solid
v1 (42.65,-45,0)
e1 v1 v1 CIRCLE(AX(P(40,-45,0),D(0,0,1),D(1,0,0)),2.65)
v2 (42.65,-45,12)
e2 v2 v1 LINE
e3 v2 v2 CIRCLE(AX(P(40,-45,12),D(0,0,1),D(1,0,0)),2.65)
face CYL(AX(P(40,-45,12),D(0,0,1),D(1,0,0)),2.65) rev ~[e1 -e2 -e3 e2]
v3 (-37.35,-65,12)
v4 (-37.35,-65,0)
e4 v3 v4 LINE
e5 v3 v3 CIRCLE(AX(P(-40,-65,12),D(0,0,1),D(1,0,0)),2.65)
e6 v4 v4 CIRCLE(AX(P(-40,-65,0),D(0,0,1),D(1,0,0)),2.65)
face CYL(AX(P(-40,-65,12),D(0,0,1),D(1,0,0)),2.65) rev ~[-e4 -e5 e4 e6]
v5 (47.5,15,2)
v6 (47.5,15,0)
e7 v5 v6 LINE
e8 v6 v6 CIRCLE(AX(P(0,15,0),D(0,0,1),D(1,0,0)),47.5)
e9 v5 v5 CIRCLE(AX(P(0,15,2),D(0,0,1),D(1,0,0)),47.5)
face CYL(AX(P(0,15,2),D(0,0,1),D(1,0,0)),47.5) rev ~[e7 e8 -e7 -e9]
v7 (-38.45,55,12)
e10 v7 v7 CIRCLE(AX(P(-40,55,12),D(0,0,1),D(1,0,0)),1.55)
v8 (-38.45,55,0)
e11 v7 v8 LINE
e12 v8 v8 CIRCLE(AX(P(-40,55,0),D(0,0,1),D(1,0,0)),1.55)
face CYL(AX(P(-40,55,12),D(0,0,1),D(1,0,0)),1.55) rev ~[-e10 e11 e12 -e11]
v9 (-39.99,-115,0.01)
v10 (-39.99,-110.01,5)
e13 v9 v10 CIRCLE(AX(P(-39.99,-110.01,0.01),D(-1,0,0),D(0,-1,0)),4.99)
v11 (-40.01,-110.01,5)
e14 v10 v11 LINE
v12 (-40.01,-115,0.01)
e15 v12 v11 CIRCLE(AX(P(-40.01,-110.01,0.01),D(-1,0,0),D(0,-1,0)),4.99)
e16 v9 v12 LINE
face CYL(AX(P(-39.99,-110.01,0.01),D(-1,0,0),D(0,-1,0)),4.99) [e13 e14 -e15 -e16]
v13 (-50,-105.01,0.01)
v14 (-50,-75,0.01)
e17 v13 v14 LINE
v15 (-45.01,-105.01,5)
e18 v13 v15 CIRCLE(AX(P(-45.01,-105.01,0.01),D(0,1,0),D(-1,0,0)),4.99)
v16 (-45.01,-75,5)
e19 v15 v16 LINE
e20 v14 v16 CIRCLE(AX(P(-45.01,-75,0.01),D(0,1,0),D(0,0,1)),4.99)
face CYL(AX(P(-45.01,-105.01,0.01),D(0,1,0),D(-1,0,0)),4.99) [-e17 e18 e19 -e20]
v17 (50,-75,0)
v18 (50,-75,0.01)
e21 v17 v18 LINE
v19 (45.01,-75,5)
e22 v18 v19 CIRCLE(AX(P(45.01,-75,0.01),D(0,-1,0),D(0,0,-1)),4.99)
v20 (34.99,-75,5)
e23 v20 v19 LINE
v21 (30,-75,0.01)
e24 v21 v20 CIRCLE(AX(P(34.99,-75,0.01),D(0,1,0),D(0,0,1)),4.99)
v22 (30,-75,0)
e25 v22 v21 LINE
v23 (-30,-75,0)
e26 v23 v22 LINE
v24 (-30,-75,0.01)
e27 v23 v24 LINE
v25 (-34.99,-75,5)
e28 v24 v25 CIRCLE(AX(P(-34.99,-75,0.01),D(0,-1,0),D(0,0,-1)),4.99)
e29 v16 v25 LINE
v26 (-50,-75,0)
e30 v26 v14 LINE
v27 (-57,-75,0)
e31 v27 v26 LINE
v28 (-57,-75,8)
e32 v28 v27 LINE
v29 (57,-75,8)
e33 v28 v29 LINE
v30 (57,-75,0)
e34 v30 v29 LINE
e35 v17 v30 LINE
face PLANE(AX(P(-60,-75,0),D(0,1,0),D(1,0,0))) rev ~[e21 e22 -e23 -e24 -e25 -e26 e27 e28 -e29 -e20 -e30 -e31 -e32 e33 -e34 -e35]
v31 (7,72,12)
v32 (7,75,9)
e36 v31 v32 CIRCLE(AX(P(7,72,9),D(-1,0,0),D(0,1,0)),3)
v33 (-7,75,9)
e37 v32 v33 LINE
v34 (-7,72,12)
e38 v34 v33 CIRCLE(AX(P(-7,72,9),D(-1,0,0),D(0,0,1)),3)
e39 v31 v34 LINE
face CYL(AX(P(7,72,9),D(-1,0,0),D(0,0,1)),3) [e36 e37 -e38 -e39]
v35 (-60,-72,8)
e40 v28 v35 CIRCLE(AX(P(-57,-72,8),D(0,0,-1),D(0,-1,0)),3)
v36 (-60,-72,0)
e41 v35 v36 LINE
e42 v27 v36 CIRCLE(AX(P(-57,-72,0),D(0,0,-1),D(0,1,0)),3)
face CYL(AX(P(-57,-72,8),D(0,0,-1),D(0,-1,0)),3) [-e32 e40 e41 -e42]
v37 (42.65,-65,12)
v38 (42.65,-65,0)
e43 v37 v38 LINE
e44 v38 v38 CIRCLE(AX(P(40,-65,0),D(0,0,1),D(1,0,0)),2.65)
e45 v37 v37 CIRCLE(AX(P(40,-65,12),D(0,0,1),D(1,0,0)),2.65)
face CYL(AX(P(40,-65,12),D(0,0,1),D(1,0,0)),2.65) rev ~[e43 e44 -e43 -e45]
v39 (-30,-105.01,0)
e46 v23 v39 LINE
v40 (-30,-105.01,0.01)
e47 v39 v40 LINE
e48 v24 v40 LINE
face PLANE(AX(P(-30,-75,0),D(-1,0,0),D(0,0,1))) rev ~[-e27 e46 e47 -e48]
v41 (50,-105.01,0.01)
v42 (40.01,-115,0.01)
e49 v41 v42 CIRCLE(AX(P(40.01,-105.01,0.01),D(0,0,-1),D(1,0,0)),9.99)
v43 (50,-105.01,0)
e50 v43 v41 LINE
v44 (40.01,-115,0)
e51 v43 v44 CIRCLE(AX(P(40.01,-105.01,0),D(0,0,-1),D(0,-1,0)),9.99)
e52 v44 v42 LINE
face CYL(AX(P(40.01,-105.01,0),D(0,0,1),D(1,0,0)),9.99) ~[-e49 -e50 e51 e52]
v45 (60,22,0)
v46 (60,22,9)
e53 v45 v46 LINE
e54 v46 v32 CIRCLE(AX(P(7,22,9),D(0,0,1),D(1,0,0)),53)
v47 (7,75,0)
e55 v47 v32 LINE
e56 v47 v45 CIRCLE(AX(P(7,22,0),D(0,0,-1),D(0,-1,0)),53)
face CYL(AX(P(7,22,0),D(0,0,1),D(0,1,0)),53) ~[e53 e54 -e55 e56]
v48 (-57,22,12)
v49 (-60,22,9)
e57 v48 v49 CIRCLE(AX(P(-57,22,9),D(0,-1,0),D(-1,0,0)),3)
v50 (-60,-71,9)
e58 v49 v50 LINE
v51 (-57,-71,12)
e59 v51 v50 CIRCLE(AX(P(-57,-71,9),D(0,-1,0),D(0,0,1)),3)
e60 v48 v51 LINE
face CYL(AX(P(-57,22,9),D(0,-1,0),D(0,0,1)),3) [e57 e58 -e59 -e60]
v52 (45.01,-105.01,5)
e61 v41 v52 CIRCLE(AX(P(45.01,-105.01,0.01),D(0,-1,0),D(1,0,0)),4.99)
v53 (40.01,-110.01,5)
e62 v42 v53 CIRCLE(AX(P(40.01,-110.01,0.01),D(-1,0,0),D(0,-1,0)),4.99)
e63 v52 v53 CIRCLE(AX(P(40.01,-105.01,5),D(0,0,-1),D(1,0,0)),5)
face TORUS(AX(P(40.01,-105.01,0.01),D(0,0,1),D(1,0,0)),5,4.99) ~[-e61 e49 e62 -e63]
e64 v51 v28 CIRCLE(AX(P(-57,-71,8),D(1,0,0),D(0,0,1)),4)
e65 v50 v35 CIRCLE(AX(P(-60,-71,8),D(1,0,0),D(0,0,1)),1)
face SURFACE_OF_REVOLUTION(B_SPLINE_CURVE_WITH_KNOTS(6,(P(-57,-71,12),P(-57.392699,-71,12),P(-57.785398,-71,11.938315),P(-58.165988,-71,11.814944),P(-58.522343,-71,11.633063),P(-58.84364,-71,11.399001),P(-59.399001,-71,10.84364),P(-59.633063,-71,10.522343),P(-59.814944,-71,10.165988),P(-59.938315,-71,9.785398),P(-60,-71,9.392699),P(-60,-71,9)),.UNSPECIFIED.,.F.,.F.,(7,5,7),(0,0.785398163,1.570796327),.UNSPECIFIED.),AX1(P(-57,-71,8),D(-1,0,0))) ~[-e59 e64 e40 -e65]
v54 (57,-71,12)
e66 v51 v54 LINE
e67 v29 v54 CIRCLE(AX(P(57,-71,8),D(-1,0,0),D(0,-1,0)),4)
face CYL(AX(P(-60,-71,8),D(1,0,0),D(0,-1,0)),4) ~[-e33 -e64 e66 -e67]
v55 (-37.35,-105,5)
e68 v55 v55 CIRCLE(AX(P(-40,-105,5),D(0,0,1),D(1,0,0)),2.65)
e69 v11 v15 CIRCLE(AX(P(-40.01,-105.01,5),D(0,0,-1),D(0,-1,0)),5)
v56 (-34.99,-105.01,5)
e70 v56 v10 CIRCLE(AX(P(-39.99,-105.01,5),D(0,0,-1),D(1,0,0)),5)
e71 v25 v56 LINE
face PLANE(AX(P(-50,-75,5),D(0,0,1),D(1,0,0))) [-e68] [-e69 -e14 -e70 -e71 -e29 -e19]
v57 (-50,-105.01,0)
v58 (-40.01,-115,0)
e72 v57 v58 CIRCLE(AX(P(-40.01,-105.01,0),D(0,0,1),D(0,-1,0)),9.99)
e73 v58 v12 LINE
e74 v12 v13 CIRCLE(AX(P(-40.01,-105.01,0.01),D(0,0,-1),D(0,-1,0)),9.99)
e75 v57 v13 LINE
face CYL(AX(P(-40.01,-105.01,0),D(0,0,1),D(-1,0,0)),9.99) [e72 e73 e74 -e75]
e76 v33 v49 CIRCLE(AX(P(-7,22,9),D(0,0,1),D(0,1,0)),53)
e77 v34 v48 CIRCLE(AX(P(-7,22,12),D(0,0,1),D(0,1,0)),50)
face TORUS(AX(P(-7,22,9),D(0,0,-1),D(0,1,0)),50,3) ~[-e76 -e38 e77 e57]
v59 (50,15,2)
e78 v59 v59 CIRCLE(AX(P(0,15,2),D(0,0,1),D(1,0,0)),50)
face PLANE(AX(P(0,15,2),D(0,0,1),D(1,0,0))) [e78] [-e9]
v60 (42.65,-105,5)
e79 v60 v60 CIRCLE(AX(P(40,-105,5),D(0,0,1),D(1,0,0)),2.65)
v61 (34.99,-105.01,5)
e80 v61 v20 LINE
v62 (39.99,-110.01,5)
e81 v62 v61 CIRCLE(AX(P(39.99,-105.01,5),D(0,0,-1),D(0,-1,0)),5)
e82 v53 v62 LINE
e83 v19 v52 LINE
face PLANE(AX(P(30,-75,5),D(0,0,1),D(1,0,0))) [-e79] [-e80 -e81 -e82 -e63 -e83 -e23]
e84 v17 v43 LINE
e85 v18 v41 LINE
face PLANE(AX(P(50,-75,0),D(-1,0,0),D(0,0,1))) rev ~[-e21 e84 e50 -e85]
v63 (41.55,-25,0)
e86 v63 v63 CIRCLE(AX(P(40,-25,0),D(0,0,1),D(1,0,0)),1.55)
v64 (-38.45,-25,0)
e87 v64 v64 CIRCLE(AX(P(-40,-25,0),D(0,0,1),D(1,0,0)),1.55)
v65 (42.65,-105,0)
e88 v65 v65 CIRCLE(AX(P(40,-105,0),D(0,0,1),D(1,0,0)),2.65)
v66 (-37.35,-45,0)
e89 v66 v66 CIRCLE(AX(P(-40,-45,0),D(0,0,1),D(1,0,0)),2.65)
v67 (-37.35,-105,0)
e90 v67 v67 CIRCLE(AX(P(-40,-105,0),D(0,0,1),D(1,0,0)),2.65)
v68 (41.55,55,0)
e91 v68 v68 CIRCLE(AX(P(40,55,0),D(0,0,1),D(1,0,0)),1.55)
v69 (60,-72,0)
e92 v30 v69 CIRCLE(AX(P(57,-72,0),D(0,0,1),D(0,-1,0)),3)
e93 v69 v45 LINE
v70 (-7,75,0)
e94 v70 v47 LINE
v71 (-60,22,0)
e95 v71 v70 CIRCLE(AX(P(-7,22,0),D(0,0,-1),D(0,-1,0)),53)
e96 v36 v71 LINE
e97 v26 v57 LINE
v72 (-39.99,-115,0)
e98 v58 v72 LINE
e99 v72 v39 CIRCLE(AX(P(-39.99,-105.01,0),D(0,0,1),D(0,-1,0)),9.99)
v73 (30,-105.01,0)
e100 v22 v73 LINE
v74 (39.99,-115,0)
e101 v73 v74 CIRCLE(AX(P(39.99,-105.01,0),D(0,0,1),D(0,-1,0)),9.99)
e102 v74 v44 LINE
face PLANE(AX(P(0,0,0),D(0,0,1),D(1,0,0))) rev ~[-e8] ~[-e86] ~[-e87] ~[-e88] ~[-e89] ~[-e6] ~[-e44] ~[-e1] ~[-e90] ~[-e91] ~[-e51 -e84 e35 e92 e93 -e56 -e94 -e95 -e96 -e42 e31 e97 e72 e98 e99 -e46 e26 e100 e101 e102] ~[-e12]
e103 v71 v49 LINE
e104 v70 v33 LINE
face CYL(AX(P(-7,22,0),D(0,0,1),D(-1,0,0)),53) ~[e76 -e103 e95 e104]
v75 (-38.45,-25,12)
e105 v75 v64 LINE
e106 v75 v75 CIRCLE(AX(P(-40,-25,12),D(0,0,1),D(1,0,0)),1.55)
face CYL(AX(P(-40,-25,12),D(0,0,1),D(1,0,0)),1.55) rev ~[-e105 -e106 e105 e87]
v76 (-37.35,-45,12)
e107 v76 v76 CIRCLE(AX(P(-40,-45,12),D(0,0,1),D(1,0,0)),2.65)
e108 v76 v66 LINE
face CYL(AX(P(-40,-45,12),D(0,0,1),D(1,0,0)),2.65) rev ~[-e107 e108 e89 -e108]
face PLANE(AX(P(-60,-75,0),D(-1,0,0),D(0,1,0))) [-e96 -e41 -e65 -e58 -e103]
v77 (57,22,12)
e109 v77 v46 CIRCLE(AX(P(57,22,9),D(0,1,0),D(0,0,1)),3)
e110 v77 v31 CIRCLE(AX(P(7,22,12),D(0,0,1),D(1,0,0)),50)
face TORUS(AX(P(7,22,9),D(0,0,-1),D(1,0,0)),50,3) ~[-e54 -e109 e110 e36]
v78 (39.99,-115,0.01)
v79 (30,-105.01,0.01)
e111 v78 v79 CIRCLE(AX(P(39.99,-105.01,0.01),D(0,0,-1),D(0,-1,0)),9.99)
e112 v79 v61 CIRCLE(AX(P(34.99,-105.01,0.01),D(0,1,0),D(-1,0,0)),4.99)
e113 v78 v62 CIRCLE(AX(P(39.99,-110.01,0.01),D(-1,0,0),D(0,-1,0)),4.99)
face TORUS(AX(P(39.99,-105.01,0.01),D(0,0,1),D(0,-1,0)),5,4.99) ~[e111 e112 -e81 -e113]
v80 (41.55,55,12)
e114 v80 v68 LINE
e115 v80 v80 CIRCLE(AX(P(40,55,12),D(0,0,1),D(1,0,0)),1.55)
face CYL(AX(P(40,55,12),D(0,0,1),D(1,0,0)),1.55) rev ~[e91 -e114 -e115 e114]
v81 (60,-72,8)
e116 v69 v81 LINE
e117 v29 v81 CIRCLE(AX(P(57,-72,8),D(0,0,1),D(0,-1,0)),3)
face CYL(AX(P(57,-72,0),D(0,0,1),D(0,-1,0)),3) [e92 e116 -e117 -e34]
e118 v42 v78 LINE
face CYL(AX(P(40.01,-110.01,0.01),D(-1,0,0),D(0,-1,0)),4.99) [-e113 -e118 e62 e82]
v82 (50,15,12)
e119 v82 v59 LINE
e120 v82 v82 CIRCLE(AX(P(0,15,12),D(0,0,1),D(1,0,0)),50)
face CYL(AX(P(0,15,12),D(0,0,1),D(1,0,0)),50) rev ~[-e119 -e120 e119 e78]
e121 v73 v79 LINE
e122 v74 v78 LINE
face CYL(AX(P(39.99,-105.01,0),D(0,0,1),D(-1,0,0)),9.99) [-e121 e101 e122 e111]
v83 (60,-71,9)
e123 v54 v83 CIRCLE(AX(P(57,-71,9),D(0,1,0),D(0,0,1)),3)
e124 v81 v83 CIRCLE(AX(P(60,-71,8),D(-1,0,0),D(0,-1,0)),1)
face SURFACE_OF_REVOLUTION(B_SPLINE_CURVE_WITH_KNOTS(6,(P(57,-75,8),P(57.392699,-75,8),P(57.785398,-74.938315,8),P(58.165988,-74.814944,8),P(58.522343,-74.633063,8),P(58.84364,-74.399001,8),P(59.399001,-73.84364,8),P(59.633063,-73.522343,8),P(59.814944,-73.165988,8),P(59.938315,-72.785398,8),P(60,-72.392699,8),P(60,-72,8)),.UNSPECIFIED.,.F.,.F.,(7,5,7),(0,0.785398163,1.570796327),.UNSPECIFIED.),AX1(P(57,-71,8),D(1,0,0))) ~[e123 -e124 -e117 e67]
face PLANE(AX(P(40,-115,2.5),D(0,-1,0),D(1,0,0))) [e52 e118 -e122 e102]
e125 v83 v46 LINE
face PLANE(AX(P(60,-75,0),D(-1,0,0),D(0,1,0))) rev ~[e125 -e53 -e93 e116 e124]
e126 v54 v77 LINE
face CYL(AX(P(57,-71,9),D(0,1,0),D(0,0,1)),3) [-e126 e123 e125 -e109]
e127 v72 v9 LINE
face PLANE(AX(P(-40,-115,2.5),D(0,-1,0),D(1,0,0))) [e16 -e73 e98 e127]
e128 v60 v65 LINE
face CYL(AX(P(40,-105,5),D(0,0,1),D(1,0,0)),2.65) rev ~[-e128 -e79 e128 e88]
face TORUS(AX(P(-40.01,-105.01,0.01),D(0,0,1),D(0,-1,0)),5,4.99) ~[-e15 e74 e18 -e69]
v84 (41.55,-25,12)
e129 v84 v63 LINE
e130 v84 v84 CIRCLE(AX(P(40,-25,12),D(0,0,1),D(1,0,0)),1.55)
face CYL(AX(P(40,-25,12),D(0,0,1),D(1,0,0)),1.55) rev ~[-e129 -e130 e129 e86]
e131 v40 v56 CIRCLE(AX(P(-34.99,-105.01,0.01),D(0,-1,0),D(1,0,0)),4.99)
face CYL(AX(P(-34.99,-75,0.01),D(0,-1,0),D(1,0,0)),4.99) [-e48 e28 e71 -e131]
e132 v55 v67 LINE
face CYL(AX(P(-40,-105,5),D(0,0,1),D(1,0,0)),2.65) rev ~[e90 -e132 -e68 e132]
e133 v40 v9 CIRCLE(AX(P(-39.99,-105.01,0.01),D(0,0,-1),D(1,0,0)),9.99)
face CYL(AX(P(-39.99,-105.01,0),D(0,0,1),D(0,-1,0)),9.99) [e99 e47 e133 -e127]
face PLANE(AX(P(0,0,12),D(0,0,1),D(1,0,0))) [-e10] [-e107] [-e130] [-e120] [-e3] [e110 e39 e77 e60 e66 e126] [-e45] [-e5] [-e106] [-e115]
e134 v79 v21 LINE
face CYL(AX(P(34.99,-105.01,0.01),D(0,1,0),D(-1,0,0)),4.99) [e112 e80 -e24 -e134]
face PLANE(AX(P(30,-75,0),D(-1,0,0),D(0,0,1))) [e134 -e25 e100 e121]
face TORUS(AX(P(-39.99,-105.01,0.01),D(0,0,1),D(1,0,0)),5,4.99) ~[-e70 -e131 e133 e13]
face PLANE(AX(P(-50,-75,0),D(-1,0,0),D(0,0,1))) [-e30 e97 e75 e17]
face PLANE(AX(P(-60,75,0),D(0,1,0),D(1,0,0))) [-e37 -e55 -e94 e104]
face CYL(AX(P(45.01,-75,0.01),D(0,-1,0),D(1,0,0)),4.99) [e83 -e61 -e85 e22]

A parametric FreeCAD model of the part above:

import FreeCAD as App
import Part
import Sketcher
Q = App.Units.Quantity


def edges_at(feature, points):
    """Names of the edges that pass closest to the given points."""
    edges = feature.Shape.Edges
    near = lambda p: min(range(len(edges)), key=lambda i: edges[i].distToShape(Part.Vertex(*p))[0])
    return sorted({f"Edge{near(p) + 1}" for p in points})


def add_polygon(sketch, points):
    """Adds a closed chain of lines whose ends are joined by coincident constraints."""
    first, n = sketch.GeometryCount, len(points)
    for a, b in zip(points, points[1:] + points[:1]):
        sketch.addGeometry(Part.LineSegment(App.Vector(*a, 0), App.Vector(*b, 0)), False)
    for i in range(n):
        sketch.addConstraint(Sketcher.Constraint("Coincident", first + i, 2, first + (i + 1) % n, 1))

doc = App.newDocument("Part")
body = doc.addObject("PartDesign::Body", "Body")

# Sketch on XY plane
sketch1 = body.newObject("Sketcher::SketchObject", "Sketch")
sketch1.AttachmentSupport = (doc.getObject("XY_Plane"), [""])
sketch1.MapMode = "FlatFace"
add_polygon(sketch1, [(-60, 75), (-60, -75), (60, -75), (60, 75)])  # lines 0-3
sketch1.addConstraint(Sketcher.Constraint("Vertical", 0))
sketch1.addConstraint(Sketcher.Constraint("Horizontal", 1))
sketch1.addConstraint(Sketcher.Constraint("Vertical", 2))
sketch1.addConstraint(Sketcher.Constraint("Horizontal", 3))
sketch1.addConstraint(Sketcher.Constraint("Symmetric", 0, 2, 2, 2, -1, 1))
sketch1.addConstraint(Sketcher.Constraint("DistanceX", 1, 1, 1, 2, Q("120 mm")))
sketch1.addConstraint(Sketcher.Constraint("DistanceY", 0, 2, 0, 1, Q("150 mm")))
pad1 = body.newObject("PartDesign::Pad", "Pad")
pad1.Profile = sketch1
pad1.Length = 12

# Sketch on XY plane
sketch2 = body.newObject("Sketcher::SketchObject", "Sketch001")
sketch2.AttachmentSupport = (doc.getObject("XY_Plane"), [""])
sketch2.MapMode = "FlatFace"
sketch2.AttachmentOffset = App.Placement(App.Vector(0, 0, 12), App.Rotation())
sketch2.addGeometry(Part.Circle(App.Vector(0, 15, 0), App.Vector(0, 0, 1), 50), False)
sketch2.addConstraint(Sketcher.Constraint("PointOnObject", 0, 3, -2))
sketch2.addConstraint(Sketcher.Constraint("Diameter", 0, Q("100 mm")))
sketch2.addConstraint(Sketcher.Constraint("DistanceY", -1, 1, 0, 3, Q("15 mm")))
pocket1 = body.newObject("PartDesign::Pocket", "Pocket")
pocket1.Profile = sketch2
pocket1.Length = 10

# Sketch on XY plane
sketch3 = body.newObject("Sketcher::SketchObject", "Sketch002")
sketch3.AttachmentSupport = (doc.getObject("XY_Plane"), [""])
sketch3.MapMode = "FlatFace"
sketch3.AttachmentOffset = App.Placement(App.Vector(0, 0, 2), App.Rotation())
sketch3.addGeometry(Part.Circle(App.Vector(0, 15, 0), App.Vector(0, 0, 1), 48), False)
sketch3.addConstraint(Sketcher.Constraint("PointOnObject", 0, 3, -2))
sketch3.addConstraint(Sketcher.Constraint("Diameter", 0, Q("95 mm")))
sketch3.addConstraint(Sketcher.Constraint("DistanceY", -1, 1, 0, 3, Q("15 mm")))
pocket2 = body.newObject("PartDesign::Pocket", "Pocket001")
pocket2.Profile = sketch3
pocket2.Length = 2

# Sketch on XY plane
sketch4 = body.newObject("Sketcher::SketchObject", "Sketch003")
sketch4.AttachmentSupport = (doc.getObject("XY_Plane"), [""])
sketch4.MapMode = "FlatFace"
sketch4.AttachmentOffset = App.Placement(App.Vector(0, 0, 12), App.Rotation())
sketch4.addGeometry(Part.Circle(App.Vector(-40, -45, 0), App.Vector(0, 0, 1), 2.6), False)
sketch4.addGeometry(Part.Circle(App.Vector(-40, -65, 0), App.Vector(0, 0, 1), 2.6), False)
sketch4.addGeometry(Part.Circle(App.Vector(40, -45, 0), App.Vector(0, 0, 1), 2.6), False)
sketch4.addGeometry(Part.Circle(App.Vector(40, -65, 0), App.Vector(0, 0, 1), 2.6), False)
sketch4.addConstraint(Sketcher.Constraint("Equal", 0, 1))
sketch4.addConstraint(Sketcher.Constraint("Equal", 1, 2))
sketch4.addConstraint(Sketcher.Constraint("Equal", 2, 3))
sketch4.addConstraint(Sketcher.Constraint("Symmetric", 0, 3, 2, 3, -2))
sketch4.addConstraint(Sketcher.Constraint("Symmetric", 1, 3, 3, 3, -2))
sketch4.addConstraint(Sketcher.Constraint("Vertical", 0, 3, 1, 3))
sketch4.addConstraint(Sketcher.Constraint("Diameter", 0, Q("5.3 mm")))
sketch4.addConstraint(Sketcher.Constraint("DistanceX", 0, 3, -1, 1, Q("40 mm")))
sketch4.addConstraint(Sketcher.Constraint("DistanceY", 0, 3, -1, 1, Q("45 mm")))
sketch4.addConstraint(Sketcher.Constraint("DistanceY", 1, 3, -1, 1, Q("65 mm")))
pocket3 = body.newObject("PartDesign::Pocket", "Pocket002")
pocket3.Profile = sketch4
pocket3.Length = 15

# Sketch on XY plane
sketch5 = body.newObject("Sketcher::SketchObject", "Sketch004")
sketch5.AttachmentSupport = (doc.getObject("XY_Plane"), [""])
sketch5.MapMode = "FlatFace"
sketch5.AttachmentOffset = App.Placement(App.Vector(0, 0, 12), App.Rotation())
sketch5.addGeometry(Part.Circle(App.Vector(-40, 55, 0), App.Vector(0, 0, 1), 1.6), False)
sketch5.addGeometry(Part.Circle(App.Vector(40, 55, 0), App.Vector(0, 0, 1), 1.6), False)
sketch5.addGeometry(Part.Circle(App.Vector(40, -25, 0), App.Vector(0, 0, 1), 1.6), False)
sketch5.addGeometry(Part.Circle(App.Vector(-40, -25, 0), App.Vector(0, 0, 1), 1.6), False)
sketch5.addConstraint(Sketcher.Constraint("Equal", 0, 1))
sketch5.addConstraint(Sketcher.Constraint("Equal", 1, 2))
sketch5.addConstraint(Sketcher.Constraint("Equal", 2, 3))
sketch5.addConstraint(Sketcher.Constraint("Symmetric", 0, 3, 1, 3, -2))
sketch5.addConstraint(Sketcher.Constraint("Symmetric", 2, 3, 3, 3, -2))
sketch5.addConstraint(Sketcher.Constraint("Vertical", 1, 3, 2, 3))
sketch5.addConstraint(Sketcher.Constraint("Diameter", 0, Q("3.1 mm")))
sketch5.addConstraint(Sketcher.Constraint("DistanceX", 0, 3, -1, 1, Q("40 mm")))
sketch5.addConstraint(Sketcher.Constraint("DistanceY", -1, 1, 0, 3, Q("55 mm")))
sketch5.addConstraint(Sketcher.Constraint("DistanceY", 2, 3, -1, 1, Q("25 mm")))
pocket4 = body.newObject("PartDesign::Pocket", "Pocket003")
pocket4.Profile = sketch5
pocket4.Length = 15

# Sketch on XZ plane
sketch6 = body.newObject("Sketcher::SketchObject", "Sketch005")
sketch6.AttachmentSupport = (doc.getObject("XZ_Plane"), [""])
sketch6.MapMode = "FlatFace"
sketch6.AttachmentOffset = App.Placement(App.Vector(0, 0, 75), App.Rotation())
add_polygon(sketch6, [(-50, 5), (-50, 0), (-30, 0), (-30, 5)])  # lines 0-3
add_polygon(sketch6, [(30, 5), (30, 0), (50, 0), (50, 5)])  # lines 4-7
sketch6.addConstraint(Sketcher.Constraint("Vertical", 0))
sketch6.addConstraint(Sketcher.Constraint("Horizontal", 1))
sketch6.addConstraint(Sketcher.Constraint("Vertical", 2))
sketch6.addConstraint(Sketcher.Constraint("Horizontal", 3))
sketch6.addConstraint(Sketcher.Constraint("Vertical", 4))
sketch6.addConstraint(Sketcher.Constraint("Horizontal", 5))
sketch6.addConstraint(Sketcher.Constraint("Vertical", 6))
sketch6.addConstraint(Sketcher.Constraint("Horizontal", 7))
sketch6.addConstraint(Sketcher.Constraint("Symmetric", 1, 2, 4, 2, -1, 1))
sketch6.addConstraint(Sketcher.Constraint("Symmetric", 0, 2, 5, 2, -2))
sketch6.addConstraint(Sketcher.Constraint("Horizontal", 3, 2, 6, 2))
sketch6.addConstraint(Sketcher.Constraint("DistanceX", 1, 1, 1, 2, Q("20 mm")))
sketch6.addConstraint(Sketcher.Constraint("DistanceY", 0, 2, 0, 1, Q("5 mm")))
sketch6.addConstraint(Sketcher.Constraint("DistanceX", 0, 2, -1, 1, Q("50 mm")))
pad2 = body.newObject("PartDesign::Pad", "Pad001")
pad2.Profile = sketch6
pad2.Length = 40

# Sketch on XY plane
sketch7 = body.newObject("Sketcher::SketchObject", "Sketch006")
sketch7.AttachmentSupport = (doc.getObject("XY_Plane"), [""])
sketch7.MapMode = "FlatFace"
sketch7.AttachmentOffset = App.Placement(App.Vector(0, 0, 5), App.Rotation())
sketch7.addGeometry(Part.Circle(App.Vector(-40, -105, 0), App.Vector(0, 0, 1), 2.6), False)
sketch7.addGeometry(Part.Circle(App.Vector(40, -105, 0), App.Vector(0, 0, 1), 2.6), False)
sketch7.addConstraint(Sketcher.Constraint("Equal", 0, 1))
sketch7.addConstraint(Sketcher.Constraint("Symmetric", 0, 3, 1, 3, -2))
sketch7.addConstraint(Sketcher.Constraint("Diameter", 0, Q("5.3 mm")))
sketch7.addConstraint(Sketcher.Constraint("DistanceX", 0, 3, -1, 1, Q("40 mm")))
sketch7.addConstraint(Sketcher.Constraint("DistanceY", 0, 3, -1, 1, Q("105 mm")))
pocket5 = body.newObject("PartDesign::Pocket", "Pocket004")
pocket5.Profile = sketch7
pocket5.Length = 5
doc.recompute()

fillet = body.newObject("PartDesign::Fillet", "Fillet")
fillet.Base = (pocket5, edges_at(pocket5, [(60, 75, 6), (-60, 75, 6)]))
fillet.Radius = 53
doc.recompute()

fillet2 = body.newObject("PartDesign::Fillet", "Fillet001")
fillet2.Base = (fillet, edges_at(fillet, [(0, -75, 12)]))
fillet2.Radius = 4
doc.recompute()

fillet3 = body.newObject("PartDesign::Fillet", "Fillet002")
fillet3.Base = (fillet2, edges_at(fillet2, [(60, -24.5, 12), (-60, -24.5, 12)]))
fillet3.Radius = 3
doc.recompute()

fillet4 = body.newObject("PartDesign::Fillet", "Fillet003")
fillet4.Base = (fillet3, edges_at(fillet3, [
    (-30, -115, 2.5),
    (-50, -115, 2.5),
    (30, -115, 2.5),
    (50, -115, 2.5),
]))
fillet4.Radius = 9.99
doc.recompute()

fillet5 = body.newObject("PartDesign::Fillet", "Fillet004")
fillet5.Base = (fillet4, edges_at(fillet4, [
    (50, -90.005, 5),
    (30, -90.005, 5),
    (-30, -90.005, 5),
    (-50, -90.005, 5),
]))
fillet5.Radius = 4.99

doc.recompute()
